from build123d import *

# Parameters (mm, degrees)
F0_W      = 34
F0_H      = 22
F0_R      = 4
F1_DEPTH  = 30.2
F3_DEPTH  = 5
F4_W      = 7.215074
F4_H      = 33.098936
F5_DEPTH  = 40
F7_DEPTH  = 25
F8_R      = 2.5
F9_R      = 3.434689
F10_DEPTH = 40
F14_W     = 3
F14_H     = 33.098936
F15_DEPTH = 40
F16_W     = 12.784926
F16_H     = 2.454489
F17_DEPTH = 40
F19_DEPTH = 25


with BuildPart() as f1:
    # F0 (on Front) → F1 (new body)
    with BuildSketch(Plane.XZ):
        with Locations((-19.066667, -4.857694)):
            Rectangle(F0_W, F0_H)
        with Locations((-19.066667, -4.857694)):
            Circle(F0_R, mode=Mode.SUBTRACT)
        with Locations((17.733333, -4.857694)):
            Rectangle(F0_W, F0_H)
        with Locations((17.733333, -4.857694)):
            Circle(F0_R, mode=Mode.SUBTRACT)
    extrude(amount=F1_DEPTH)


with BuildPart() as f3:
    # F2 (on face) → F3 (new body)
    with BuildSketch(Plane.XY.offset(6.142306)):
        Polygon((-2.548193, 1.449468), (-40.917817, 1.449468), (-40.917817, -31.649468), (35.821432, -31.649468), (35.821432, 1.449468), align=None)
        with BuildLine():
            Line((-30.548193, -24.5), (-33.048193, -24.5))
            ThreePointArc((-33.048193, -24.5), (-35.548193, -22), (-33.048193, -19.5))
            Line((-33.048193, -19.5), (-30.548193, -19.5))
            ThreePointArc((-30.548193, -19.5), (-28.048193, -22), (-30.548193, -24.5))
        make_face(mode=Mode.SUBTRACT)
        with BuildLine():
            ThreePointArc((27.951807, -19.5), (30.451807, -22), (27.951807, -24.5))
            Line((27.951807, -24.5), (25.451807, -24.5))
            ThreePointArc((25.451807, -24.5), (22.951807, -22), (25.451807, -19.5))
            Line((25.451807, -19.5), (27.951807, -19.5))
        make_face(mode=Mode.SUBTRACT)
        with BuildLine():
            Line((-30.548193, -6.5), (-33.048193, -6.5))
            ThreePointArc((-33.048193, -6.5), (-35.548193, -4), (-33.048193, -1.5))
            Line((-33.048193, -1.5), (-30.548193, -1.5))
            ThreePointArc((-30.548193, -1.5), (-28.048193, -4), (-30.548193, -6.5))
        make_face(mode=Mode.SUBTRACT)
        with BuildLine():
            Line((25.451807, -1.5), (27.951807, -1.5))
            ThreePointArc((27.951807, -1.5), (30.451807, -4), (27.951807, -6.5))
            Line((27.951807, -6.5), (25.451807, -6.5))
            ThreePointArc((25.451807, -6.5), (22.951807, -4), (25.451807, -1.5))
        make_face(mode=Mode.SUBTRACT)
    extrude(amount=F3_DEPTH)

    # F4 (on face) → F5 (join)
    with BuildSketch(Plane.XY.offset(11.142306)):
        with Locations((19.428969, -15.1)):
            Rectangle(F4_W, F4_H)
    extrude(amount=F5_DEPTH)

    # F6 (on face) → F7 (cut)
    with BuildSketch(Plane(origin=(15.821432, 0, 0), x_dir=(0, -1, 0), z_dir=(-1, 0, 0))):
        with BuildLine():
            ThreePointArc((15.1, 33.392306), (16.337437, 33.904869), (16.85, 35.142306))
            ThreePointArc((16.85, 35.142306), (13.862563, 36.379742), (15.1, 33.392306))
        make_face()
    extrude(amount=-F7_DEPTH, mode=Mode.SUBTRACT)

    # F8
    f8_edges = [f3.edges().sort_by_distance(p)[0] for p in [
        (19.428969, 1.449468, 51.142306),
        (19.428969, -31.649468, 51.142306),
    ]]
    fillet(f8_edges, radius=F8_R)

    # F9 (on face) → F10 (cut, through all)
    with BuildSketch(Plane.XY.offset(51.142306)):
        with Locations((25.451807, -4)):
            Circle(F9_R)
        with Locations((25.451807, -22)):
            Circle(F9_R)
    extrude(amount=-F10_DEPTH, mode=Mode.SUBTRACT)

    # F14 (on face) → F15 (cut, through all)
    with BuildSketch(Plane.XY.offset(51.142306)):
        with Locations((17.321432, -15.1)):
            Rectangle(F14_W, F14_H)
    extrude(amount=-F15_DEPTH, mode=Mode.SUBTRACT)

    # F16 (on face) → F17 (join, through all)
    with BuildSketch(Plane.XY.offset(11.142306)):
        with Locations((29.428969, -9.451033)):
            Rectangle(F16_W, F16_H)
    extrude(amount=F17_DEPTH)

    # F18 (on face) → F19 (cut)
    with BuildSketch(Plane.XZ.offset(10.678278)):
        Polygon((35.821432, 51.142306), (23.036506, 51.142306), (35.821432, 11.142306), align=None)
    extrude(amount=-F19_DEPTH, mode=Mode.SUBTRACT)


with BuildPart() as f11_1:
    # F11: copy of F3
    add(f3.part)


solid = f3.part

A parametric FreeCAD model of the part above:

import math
import FreeCAD as App
import Part
import Sketcher

V = App.Vector


def edges_at(feature, points):
    """Names of the edges that pass closest to the given points."""
    edges = feature.Shape.Edges
    near = lambda p: min(range(len(edges)), key=lambda i: edges[i].distToShape(Part.Vertex(*p))[0])
    return sorted({f"Edge{near(p) + 1}" for p in points})


def add_polygon(sketch, points):
    """Adds a closed chain of lines whose ends are joined by coincident constraints."""
    first, n = sketch.GeometryCount, len(points)
    for a, b in zip(points, points[1:] + points[:1]):
        sketch.addGeometry(Part.LineSegment(App.Vector(*a, 0), App.Vector(*b, 0)), False)
    for i in range(n):
        sketch.addConstraint(Sketcher.Constraint("Coincident", first + i, 2, first + (i + 1) % n, 1))

doc = App.newDocument("Part")
params = doc.addObject("Spreadsheet::Sheet", "Params")
for row, (alias, value) in enumerate([
    ("sketch1_diameter", "8 mm"),
    ("sketch1_width", "34 mm"),
    ("sketch1_height", "22 mm"),
    ("pad1_length", "30.2 mm"),
    ("sketch2_radius", "2.5 mm"),
    ("sketch2_width", "2.5 mm"),
    ("pad2_length", "5 mm"),
    ("pad3_length", "40 mm"),
    ("sketch4_radius", "1.75 mm"),
    ("pocket1_length", "25 mm"),
    ("fillet_radius", "2.5 mm"),
    ("pocket2_length", "40 mm"),
    ("sketch6_width", "3 mm"),
    ("pocket3_length", "40 mm"),
    ("pad4_length", "40 mm"),
    ("sketch8_height", "40 mm"),
    ("pocket4_length", "25 mm"),
], start=1):
    params.set(f"A{row}", alias)
    params.set(f"B{row}", "=" + value)
    params.setAlias(f"B{row}", alias)

body = doc.addObject("PartDesign::Body", "Body")
body.AllowCompound = True

sketch1 = doc.addObject("Sketcher::SketchObject", "Sketch")
body.addObject(sketch1)
sketch1.AttachmentSupport = (doc.XZ_Plane, [""])
sketch1.MapMode = "FlatFace"
add_polygon(sketch1, [(-36.1, 6.1), (-36.1, -15.9), (-2.1, -15.9), (-2.1, 6.1)])
sketch1.addGeometry(Part.Circle(V(-19.1, -4.9, 0), V(0, 0, 1), 4), False)
add_polygon(sketch1, [(0.7, 6.1), (0.7, -15.9), (34.7, -15.9), (34.7, 6.1)])
sketch1.addGeometry(Part.Circle(V(17.7, -4.9, 0), V(0, 0, 1), 4), False)
sketch1.addConstraint([
    Sketcher.Constraint("Vertical", 0),
    Sketcher.Constraint("Horizontal", 1),
    Sketcher.Constraint("Vertical", 2),
    Sketcher.Constraint("Horizontal", 3),
    Sketcher.Constraint("Vertical", 5),
    Sketcher.Constraint("Horizontal", 6),
    Sketcher.Constraint("Vertical", 7),
    Sketcher.Constraint("Horizontal", 8),
    Sketcher.Constraint("Equal", 4, 9),
    Sketcher.Constraint("Horizontal", 4, 3, 9, 3),
    Sketcher.Constraint("Horizontal", 1, 2, 5, 2),
    Sketcher.Constraint("Horizontal", 3, 2, 7, 2),
    Sketcher.Constraint("Equal", 3, 6),
    Sketcher.Constraint("Diameter", 4, 8.0),
    Sketcher.Constraint("DistanceX", 1, 1, 1, 2, 34.0),
    Sketcher.Constraint("DistanceY", 0, 2, 0, 1, 22.0),
    Sketcher.Constraint("DistanceX", 0, 2, 4, 3, 17.0),
    Sketcher.Constraint("DistanceY", 0, 2, 4, 3, 11.0),
    Sketcher.Constraint("DistanceX", 5, 2, 9, 3, 17.0),
    Sketcher.Constraint("DistanceX", 4, 3, 9, 3, 36.8),
    Sketcher.Constraint("DistanceX", 4, 3, -1, 1, 19.066667),
    Sketcher.Constraint("DistanceY", 4, 3, -1, 1, 4.857694),
])
sketch1.setExpression("Constraints[21]", "Params.sketch1_diameter")
sketch1.setExpression("Constraints[22]", "Params.sketch1_width")
sketch1.setExpression("Constraints[23]", "Params.sketch1_height")
pad1 = doc.addObject("PartDesign::Pad", "Pad")
body.addObject(pad1)
pad1.Profile = sketch1
pad1.setExpression("Length", "Params.pad1_length")
body2 = doc.addObject("PartDesign::Body", "Body001")

sketch2 = doc.addObject("Sketcher::SketchObject", "Sketch001")
body2.addObject(sketch2)
sketch2.AttachmentSupport = (doc.getObject("XY_Plane001"), [""])
sketch2.MapMode = "FlatFace"
sketch2.AttachmentOffset = App.Placement(V(0, 0, 6.142306), App.Rotation())
add_polygon(sketch2, [(-40.9, 1.4), (-40.9, -31.6), (35.8, -31.6), (35.8, 1.4)])
sketch2.addGeometry(Part.ArcOfCircle(Part.Circle(V(-30.5, -22, 0), V(0, 0, 1), 2.5), math.radians(-90), math.radians(90)), False)
sketch2.addGeometry(Part.LineSegment(V(-30.5, -24.5, 0), V(-33, -24.5, 0)), False)
sketch2.addGeometry(Part.ArcOfCircle(Part.Circle(V(-33, -22, 0), V(0, 0, 1), 2.5), math.radians(90), math.radians(270)), False)
sketch2.addGeometry(Part.LineSegment(V(-33, -19.5, 0), V(-30.5, -19.5, 0)), False)
sketch2.addGeometry(Part.LineSegment(V(25.5, -19.5, 0), V(28, -19.5, 0)), False)
sketch2.addGeometry(Part.ArcOfCircle(Part.Circle(V(28, -22, 0), V(0, 0, 1), 2.5), math.radians(-90), math.radians(90)), False)
sketch2.addGeometry(Part.LineSegment(V(28, -24.5, 0), V(25.5, -24.5, 0)), False)
sketch2.addGeometry(Part.ArcOfCircle(Part.Circle(V(25.5, -22, 0), V(0, 0, 1), 2.5), math.radians(90), math.radians(270)), False)
sketch2.addGeometry(Part.ArcOfCircle(Part.Circle(V(-30.5, -4, 0), V(0, 0, 1), 2.5), math.radians(-90), math.radians(90)), False)
sketch2.addGeometry(Part.LineSegment(V(-30.5, -6.5, 0), V(-33, -6.5, 0)), False)
sketch2.addGeometry(Part.ArcOfCircle(Part.Circle(V(-33, -4, 0), V(0, 0, 1), 2.5), math.radians(90), math.radians(270)), False)
sketch2.addGeometry(Part.LineSegment(V(-33, -1.5, 0), V(-30.5, -1.5, 0)), False)
sketch2.addGeometry(Part.ArcOfCircle(Part.Circle(V(25.5, -4, 0), V(0, 0, 1), 2.5), math.radians(90), math.radians(270)), False)
sketch2.addGeometry(Part.LineSegment(V(25.5, -1.5, 0), V(28, -1.5, 0)), False)
sketch2.addGeometry(Part.ArcOfCircle(Part.Circle(V(28, -4, 0), V(0, 0, 1), 2.5), math.radians(-90), math.radians(90)), False)
sketch2.addGeometry(Part.LineSegment(V(28, -6.5, 0), V(25.5, -6.5, 0)), False)
sketch2.addConstraint([
    Sketcher.Constraint("Tangent", 4, 1, 5, 1),
    Sketcher.Constraint("Tangent", 5, 2, 6, 2),
    Sketcher.Constraint("Tangent", 6, 1, 7, 1),
    Sketcher.Constraint("Tangent", 7, 2, 4, 2),
    Sketcher.Constraint("Tangent", 8, 2, 9, 2),
    Sketcher.Constraint("Tangent", 9, 1, 10, 1),
    Sketcher.Constraint("Tangent", 10, 2, 11, 2),
    Sketcher.Constraint("Tangent", 11, 1, 8, 1),
    Sketcher.Constraint("Tangent", 12, 1, 13, 1),
    Sketcher.Constraint("Tangent", 13, 2, 14, 2),
    Sketcher.Constraint("Tangent", 14, 1, 15, 1),
    Sketcher.Constraint("Tangent", 15, 2, 12, 2),
    Sketcher.Constraint("Tangent", 16, 1, 17, 1),
    Sketcher.Constraint("Tangent", 17, 2, 18, 2),
    Sketcher.Constraint("Tangent", 18, 1, 19, 1),
    Sketcher.Constraint("Tangent", 19, 2, 16, 2),
    Sketcher.Constraint("Vertical", 0),
    Sketcher.Constraint("Horizontal", 1),
    Sketcher.Constraint("Vertical", 2),
    Sketcher.Constraint("Horizontal", 3),
    Sketcher.Constraint("Horizontal", 5),
    Sketcher.Constraint("Horizontal", 7),
    Sketcher.Constraint("Horizontal", 8),
    Sketcher.Constraint("Horizontal", 10),
    Sketcher.Constraint("Horizontal", 13),
    Sketcher.Constraint("Horizontal", 15),
    Sketcher.Constraint("Horizontal", 17),
    Sketcher.Constraint("Horizontal", 19),
    Sketcher.Constraint("Equal", 6, 9),
    Sketcher.Constraint("Equal", 11, 12),
    Sketcher.Constraint("Equal", 14, 16),
    Sketcher.Constraint("Horizontal", 6, 3, 9, 3),
    Sketcher.Constraint("Horizontal", 14, 3, 16, 3),
    Sketcher.Constraint("Vertical", 4, 3, 12, 3),
    Sketcher.Constraint("Vertical", 6, 3, 14, 3),
    Sketcher.Constraint("Vertical", 11, 3, 16, 3),
    Sketcher.Constraint("Vertical", 9, 3, 18, 3),
    Sketcher.Constraint("Equal", 7, 8),
    Sketcher.Constraint("Radius", 4, 2.5),
    Sketcher.Constraint("DistanceX", 5, 2, 5, 1, 2.5),
    Sketcher.Constraint("DistanceY", 4, 3, -1, 1, 22.0),
    Sketcher.Constraint("DistanceY", 12, 3, -1, 1, 4.0),
    Sketcher.Constraint("DistanceX", 6, 3, 9, 3, 61.0),
    Sketcher.Constraint("DistanceX", 1, 1, 1, 2, 76.739249),
    Sketcher.Constraint("DistanceY", 0, 2, 0, 1, 33.098936),
    Sketcher.Constraint("DistanceY", 14, 1, 3, 2, 2.949468),
    Sketcher.Constraint("DistanceX", 4, 3, -1, 1, 30.548193),
    Sketcher.Constraint("DistanceX", 0, 2, -1, 1, 40.917817),
])
sketch2.setExpression("Constraints[42]", "Params.sketch2_radius")
sketch2.setExpression("Constraints[43]", "Params.sketch2_width")
pad2 = doc.addObject("PartDesign::Pad", "Pad001")
body2.addObject(pad2)
pad2.Profile = sketch2
pad2.setExpression("Length", "Params.pad2_length")

sketch3 = doc.addObject("Sketcher::SketchObject", "Sketch002")
body2.addObject(sketch3)
sketch3.AttachmentSupport = (doc.getObject("XY_Plane001"), [""])
sketch3.MapMode = "FlatFace"
sketch3.AttachmentOffset = App.Placement(V(0, 0, 11.142306), App.Rotation())
add_polygon(sketch3, [(16, 1), (16, -32), (23, -32), (23, 1)])
sketch3.addConstraint([
    Sketcher.Constraint("Vertical", 0),
    Sketcher.Constraint("Horizontal", 1),
    Sketcher.Constraint("Vertical", 2),
    Sketcher.Constraint("Horizontal", 3),
    Sketcher.Constraint("DistanceX", 1, 1, 1, 2, 7.215074),
    Sketcher.Constraint("DistanceY", 0, 2, 0, 1, 33.098936),
    Sketcher.Constraint("DistanceX", -1, 1, 0, 2, 15.821432),
    Sketcher.Constraint("DistanceY", 0, 2, -1, 1, 31.649468),
])
pad3 = doc.addObject("PartDesign::Pad", "Pad002")
body2.addObject(pad3)
pad3.Profile = sketch3
pad3.setExpression("Length", "Params.pad3_length")

sketch4 = doc.addObject("Sketcher::SketchObject", "Sketch003")
body2.addObject(sketch4)
sketch4.AttachmentSupport = (doc.getObject("YZ_Plane001"), [""])
sketch4.MapMode = "FlatFace"
sketch4.AttachmentOffset = App.Placement(V(0, 0, 15.821432), App.Rotation())
sketch4.addGeometry([
    Part.ArcOfCircle(Part.Circle(V(-15.1, 35.1, 0), V(0, 0, 1), 1.7), math.radians(180), math.radians(270)),
    Part.ArcOfCircle(Part.Circle(V(-15.1, 35.1, 0), V(0, 0, 1), 1.7), math.radians(-90), math.radians(180)),
], False)
sketch4.addConstraint([
    Sketcher.Constraint("Tangent", 0, 1, 1, 2),
    Sketcher.Constraint("Coincident", 1, 1, 0, 2),
    Sketcher.Constraint("Horizontal", 1, 3, 0, 1),
    Sketcher.Constraint("Vertical", 0, 3, 1, 1),
    Sketcher.Constraint("Radius", 0, 1.75),
    Sketcher.Constraint("DistanceX", 0, 3, -1, 1, 15.1),
    Sketcher.Constraint("DistanceY", -1, 1, 0, 3, 35.142306),
])
sketch4.setExpression("Constraints[4]", "Params.sketch4_radius")
pocket1 = doc.addObject("PartDesign::Pocket", "Pocket")
body2.addObject(pocket1)
pocket1.Profile = sketch4
pocket1.setExpression("Length", "Params.pocket1_length")
pocket1.Reversed = True
doc.recompute()

fillet = doc.addObject("PartDesign::Fillet", "Fillet")
body2.addObject(fillet)
fillet.Base = (pocket1, edges_at(pocket1, [(19.429, 1.449, 51.142), (19.429, -31.649, 51.142)]))
fillet.setExpression("Radius", "Params.fillet_radius")

sketch5 = doc.addObject("Sketcher::SketchObject", "Sketch004")
body2.addObject(sketch5)
sketch5.AttachmentSupport = (doc.getObject("XY_Plane001"), [""])
sketch5.MapMode = "FlatFace"
sketch5.AttachmentOffset = App.Placement(V(0, 0, 51.142306), App.Rotation())
sketch5.addGeometry([
    Part.Circle(V(25.5, -4, 0), V(0, 0, 1), 3.4),
    Part.Circle(V(25.5, -22, 0), V(0, 0, 1), 3.4),
], False)
sketch5.addConstraint([
    Sketcher.Constraint("Equal", 0, 1),
    Sketcher.Constraint("Vertical", 0, 3, 1, 3),
    Sketcher.Constraint("DistanceY", 0, 3, -1, 1, 4.0),
    Sketcher.Constraint("DistanceY", 1, 3, -1, 1, 22.0),
    Sketcher.Constraint("Diameter", 0, 6.869378),
    Sketcher.Constraint("DistanceX", -1, 1, 0, 3, 25.451807),
])
pocket2 = doc.addObject("PartDesign::Pocket", "Pocket001")
body2.addObject(pocket2)
pocket2.Profile = sketch5
pocket2.setExpression("Length", "Params.pocket2_length")

sketch6 = doc.addObject("Sketcher::SketchObject", "Sketch005")
body2.addObject(sketch6)
sketch6.AttachmentSupport = (doc.getObject("XY_Plane001"), [""])
sketch6.MapMode = "FlatFace"
sketch6.AttachmentOffset = App.Placement(V(0, 0, 51.142306), App.Rotation())
add_polygon(sketch6, [(15.8, 1.4), (15.8, -31.6), (18.8, -31.6), (18.8, 1.4)])
sketch6.addConstraint([
    Sketcher.Constraint("Vertical", 0),
    Sketcher.Constraint("Horizontal", 1),
    Sketcher.Constraint("Vertical", 2),
    Sketcher.Constraint("Horizontal", 3),
    Sketcher.Constraint("DistanceX", 1, 1, 1, 2, 3.0),
    Sketcher.Constraint("DistanceY", 0, 2, 0, 1, 33.098936),
    Sketcher.Constraint("DistanceX", -1, 1, 0, 2, 15.821432),
    Sketcher.Constraint("DistanceY", 0, 2, -1, 1, 31.649468),
])
sketch6.setExpression("Constraints[8]", "Params.sketch6_width")
pocket3 = doc.addObject("PartDesign::Pocket", "Pocket002")
body2.addObject(pocket3)
pocket3.Profile = sketch6
pocket3.setExpression("Length", "Params.pocket3_length")

sketch7 = doc.addObject("Sketcher::SketchObject", "Sketch006")
body2.addObject(sketch7)
sketch7.AttachmentSupport = (doc.getObject("XY_Plane001"), [""])
sketch7.MapMode = "FlatFace"
sketch7.AttachmentOffset = App.Placement(V(0, 0, 11.142306), App.Rotation())
add_polygon(sketch7, [(23, -8.2), (23, -10.7), (35.8, -10.7), (35.8, -8.2)])
sketch7.addConstraint([
    Sketcher.Constraint("Vertical", 0),
    Sketcher.Constraint("Horizontal", 1),
    Sketcher.Constraint("Vertical", 2),
    Sketcher.Constraint("Horizontal", 3),
    Sketcher.Constraint("DistanceY", 0, 2, 0, 1, 2.454489),
    Sketcher.Constraint("DistanceX", 1, 1, 1, 2, 12.784926),
    Sketcher.Constraint("DistanceY", 2, 2, -1, 1, 8.223788),
    Sketcher.Constraint("DistanceX", -1, 1, 0, 2, 23.036506),
])
pad4 = doc.addObject("PartDesign::Pad", "Pad003")
body2.addObject(pad4)
pad4.Profile = sketch7
pad4.setExpression("Length", "Params.pad4_length")

sketch8 = doc.addObject("Sketcher::SketchObject", "Sketch007")
body2.addObject(sketch8)
sketch8.AttachmentSupport = (doc.getObject("XZ_Plane001"), [""])
sketch8.MapMode = "FlatFace"
sketch8.AttachmentOffset = App.Placement(V(0, 0, 10.678278), App.Rotation())
add_polygon(sketch8, [(36, 51), (23, 51), (36, 11)])
sketch8.addConstraint([
    Sketcher.Constraint("Horizontal", 0),
    Sketcher.Constraint("Vertical", 2),
    Sketcher.Constraint("DistanceY", 2, 1, 2, 2, 40.0),
    Sketcher.Constraint("DistanceX", 0, 2, 0, 1, 12.784926),
    Sketcher.Constraint("DistanceX", -1, 1, 0, 2, 23.036506),
    Sketcher.Constraint("DistanceY", -1, 1, 0, 2, 51.142306),
])
sketch8.setExpression("Constraints[5]", "Params.sketch8_height")
pocket4 = doc.addObject("PartDesign::Pocket", "Pocket003")
body2.addObject(pocket4)
pocket4.Profile = sketch8
pocket4.setExpression("Length", "Params.pocket4_length")
body3 = doc.addObject("PartDesign::Body", "Body002")
doc.recompute()

body3.BaseFeature = body2
doc.recompute()
body.Visibility = False
body2.Visibility = False

doc.recompute()
